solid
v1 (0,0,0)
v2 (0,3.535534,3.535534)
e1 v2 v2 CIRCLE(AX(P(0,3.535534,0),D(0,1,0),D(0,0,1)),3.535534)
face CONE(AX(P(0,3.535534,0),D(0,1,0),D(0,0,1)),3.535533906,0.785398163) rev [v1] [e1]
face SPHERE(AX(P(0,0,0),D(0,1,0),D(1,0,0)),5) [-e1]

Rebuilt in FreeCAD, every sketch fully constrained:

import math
import FreeCAD as App
import Part
import Sketcher
from FreeCAD import Vector
Q = App.Units.Quantity

doc = App.newDocument("Part")
body = doc.addObject("PartDesign::Body", "Body")

# Sketch on XY plane
sketch1 = body.newObject("Sketcher::SketchObject", "Sketch")
sketch1.AttachmentSupport = (doc.getObject("XY_Plane"), [""])
sketch1.MapMode = "FlatFace"
sketch1.addGeometry([
    Part.LineSegment(Vector(0, 0, 0), Vector(0, -5, 0)),
    Part.ArcOfCircle(Part.Circle(Vector(0, 0, 0), Vector(0, 0, 1), 5), math.radians(-90), math.radians(45)),
    Part.LineSegment(Vector(4, 4, 0), Vector(0, 0, 0)),
], False)
sketch1.addConstraint([
    Sketcher.Constraint("Coincident", 0, 2, 1, 1),
    Sketcher.Constraint("Coincident", 1, 2, 2, 1),
    Sketcher.Constraint("Coincident", 2, 2, 0, 1),
    Sketcher.Constraint("Vertical", 0),
    Sketcher.Constraint("Coincident", 1, 3, -1, 1),
    Sketcher.Constraint("Coincident", 2, 2, -1, 1),
    Sketcher.Constraint("Radius", 1, 5.0),
    Sketcher.Constraint("Angle", 2, Q("-135 deg")),
])
revolution = body.newObject("PartDesign::Revolution", "Revolution")
revolution.Profile = sketch1
revolution.ReferenceAxis = (sketch1, ["V_Axis"])
revolution.Angle = 360

doc.recompute()
